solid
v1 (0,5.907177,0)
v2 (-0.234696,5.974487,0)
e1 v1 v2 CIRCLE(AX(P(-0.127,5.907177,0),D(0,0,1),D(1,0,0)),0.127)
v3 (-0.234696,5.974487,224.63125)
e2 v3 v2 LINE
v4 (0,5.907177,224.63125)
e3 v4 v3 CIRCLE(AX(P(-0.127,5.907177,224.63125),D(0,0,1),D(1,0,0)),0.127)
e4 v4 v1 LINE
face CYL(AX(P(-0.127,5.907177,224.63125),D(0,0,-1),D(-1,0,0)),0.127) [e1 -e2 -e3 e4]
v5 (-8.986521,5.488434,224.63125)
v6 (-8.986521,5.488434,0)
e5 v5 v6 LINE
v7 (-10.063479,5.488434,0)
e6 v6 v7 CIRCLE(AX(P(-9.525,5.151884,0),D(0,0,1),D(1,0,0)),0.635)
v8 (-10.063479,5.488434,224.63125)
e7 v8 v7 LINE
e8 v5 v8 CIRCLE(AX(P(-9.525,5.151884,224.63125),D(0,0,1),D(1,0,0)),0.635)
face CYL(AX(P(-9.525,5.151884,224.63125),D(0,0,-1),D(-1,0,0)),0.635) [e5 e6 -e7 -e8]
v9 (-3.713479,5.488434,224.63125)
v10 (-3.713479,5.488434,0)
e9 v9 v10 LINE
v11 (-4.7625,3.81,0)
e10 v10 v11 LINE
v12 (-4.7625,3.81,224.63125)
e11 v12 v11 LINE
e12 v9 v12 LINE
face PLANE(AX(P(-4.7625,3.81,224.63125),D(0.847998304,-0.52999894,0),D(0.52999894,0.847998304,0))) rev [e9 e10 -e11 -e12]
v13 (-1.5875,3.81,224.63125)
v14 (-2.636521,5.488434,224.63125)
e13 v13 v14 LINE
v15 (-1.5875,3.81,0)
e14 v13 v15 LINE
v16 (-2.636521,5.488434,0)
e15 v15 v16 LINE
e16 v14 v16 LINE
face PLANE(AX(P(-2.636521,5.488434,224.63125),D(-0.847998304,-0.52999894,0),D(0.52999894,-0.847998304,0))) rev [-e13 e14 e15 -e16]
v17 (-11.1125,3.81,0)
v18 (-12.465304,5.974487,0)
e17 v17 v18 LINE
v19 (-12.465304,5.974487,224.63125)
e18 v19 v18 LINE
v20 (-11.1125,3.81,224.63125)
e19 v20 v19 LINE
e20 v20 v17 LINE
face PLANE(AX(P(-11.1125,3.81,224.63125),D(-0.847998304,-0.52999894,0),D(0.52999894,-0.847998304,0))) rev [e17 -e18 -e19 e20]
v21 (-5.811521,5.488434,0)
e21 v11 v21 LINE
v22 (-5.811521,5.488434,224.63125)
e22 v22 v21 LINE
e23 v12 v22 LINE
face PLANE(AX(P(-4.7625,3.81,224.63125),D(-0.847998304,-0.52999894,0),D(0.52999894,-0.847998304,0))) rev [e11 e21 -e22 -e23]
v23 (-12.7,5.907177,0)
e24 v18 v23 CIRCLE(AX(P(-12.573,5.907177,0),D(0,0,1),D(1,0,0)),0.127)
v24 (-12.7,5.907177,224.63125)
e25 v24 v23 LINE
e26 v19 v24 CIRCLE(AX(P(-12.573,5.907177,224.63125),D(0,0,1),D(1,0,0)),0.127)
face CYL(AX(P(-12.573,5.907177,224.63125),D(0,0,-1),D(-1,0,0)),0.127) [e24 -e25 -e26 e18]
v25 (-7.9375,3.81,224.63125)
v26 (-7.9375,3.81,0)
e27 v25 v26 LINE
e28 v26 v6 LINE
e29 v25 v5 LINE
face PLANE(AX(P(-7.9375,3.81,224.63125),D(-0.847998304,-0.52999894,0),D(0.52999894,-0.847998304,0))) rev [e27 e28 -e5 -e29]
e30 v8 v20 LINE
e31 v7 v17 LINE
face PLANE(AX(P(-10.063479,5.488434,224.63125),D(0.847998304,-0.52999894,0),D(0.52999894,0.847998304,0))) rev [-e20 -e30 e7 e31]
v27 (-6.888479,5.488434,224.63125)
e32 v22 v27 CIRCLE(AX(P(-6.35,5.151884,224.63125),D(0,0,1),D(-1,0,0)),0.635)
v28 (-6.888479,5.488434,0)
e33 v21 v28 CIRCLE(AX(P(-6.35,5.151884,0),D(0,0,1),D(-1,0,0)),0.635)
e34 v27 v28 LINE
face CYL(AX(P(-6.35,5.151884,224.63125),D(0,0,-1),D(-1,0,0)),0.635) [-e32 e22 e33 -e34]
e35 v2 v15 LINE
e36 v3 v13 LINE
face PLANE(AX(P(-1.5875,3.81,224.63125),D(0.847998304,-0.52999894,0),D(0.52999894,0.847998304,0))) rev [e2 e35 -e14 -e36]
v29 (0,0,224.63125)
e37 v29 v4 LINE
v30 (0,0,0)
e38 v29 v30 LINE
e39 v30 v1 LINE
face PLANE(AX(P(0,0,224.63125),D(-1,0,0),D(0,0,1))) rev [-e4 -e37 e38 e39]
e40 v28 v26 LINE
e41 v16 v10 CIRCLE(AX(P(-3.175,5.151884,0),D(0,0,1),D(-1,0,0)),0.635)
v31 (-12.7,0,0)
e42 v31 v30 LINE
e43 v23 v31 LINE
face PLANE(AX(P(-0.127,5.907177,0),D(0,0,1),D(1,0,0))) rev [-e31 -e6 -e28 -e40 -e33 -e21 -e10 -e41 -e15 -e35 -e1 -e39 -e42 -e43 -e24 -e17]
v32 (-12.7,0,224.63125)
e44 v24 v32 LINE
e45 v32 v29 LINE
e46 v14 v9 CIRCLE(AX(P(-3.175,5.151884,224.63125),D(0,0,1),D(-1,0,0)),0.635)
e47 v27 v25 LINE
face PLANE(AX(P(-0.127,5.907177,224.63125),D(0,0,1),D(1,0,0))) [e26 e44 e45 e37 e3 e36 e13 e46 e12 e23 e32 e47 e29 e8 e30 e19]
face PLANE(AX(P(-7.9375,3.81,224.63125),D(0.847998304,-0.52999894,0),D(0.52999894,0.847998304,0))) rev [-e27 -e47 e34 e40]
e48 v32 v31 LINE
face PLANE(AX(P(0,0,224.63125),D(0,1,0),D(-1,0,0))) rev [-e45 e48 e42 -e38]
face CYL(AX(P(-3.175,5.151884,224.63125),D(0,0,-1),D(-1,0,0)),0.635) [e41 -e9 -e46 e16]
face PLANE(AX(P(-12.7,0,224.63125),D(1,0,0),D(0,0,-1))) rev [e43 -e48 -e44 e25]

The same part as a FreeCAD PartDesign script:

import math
import FreeCAD as App
import Part
import Sketcher
Q = App.Units.Quantity

doc = App.newDocument("Part")
body = doc.addObject("PartDesign::Body", "Body")

sketch1 = body.newObject("Sketcher::SketchObject", "Sketch")
sketch1.AttachmentSupport = (doc.getObject("XY_Plane"), [""])
sketch1.MapMode = "FlatFace"
sketch1.addGeometry(Part.LineSegment(App.Vector(-12.7, 0, 0), App.Vector(0, 0, 0)), False)
sketch1.addGeometry(Part.LineSegment(App.Vector(0, 0, 0), App.Vector(0, 5.907177, 0)), False)
sketch1.addGeometry(Part.ArcOfCircle(Part.Circle(App.Vector(-0.127, 5.907177, 0), App.Vector(0, 0, 1), 0.127), math.radians(0), math.radians(147.994617)), False)
sketch1.addGeometry(Part.LineSegment(App.Vector(-0.234696, 5.974487, 0), App.Vector(-1.5875, 3.81, 0)), False)
sketch1.addGeometry(Part.LineSegment(App.Vector(-1.5875, 3.81, 0), App.Vector(-2.636521, 5.488434, 0)), False)
sketch1.addGeometry(Part.ArcOfCircle(Part.Circle(App.Vector(-3.175, 5.151884, 0), App.Vector(0, 0, 1), 0.635), math.radians(32.005383), math.radians(147.994617)), False)
sketch1.addGeometry(Part.LineSegment(App.Vector(-3.713479, 5.488434, 0), App.Vector(-4.7625, 3.81, 0)), False)
sketch1.addGeometry(Part.LineSegment(App.Vector(-4.7625, 3.81, 0), App.Vector(-5.811521, 5.488434, 0)), False)
sketch1.addGeometry(Part.ArcOfCircle(Part.Circle(App.Vector(-6.35, 5.151884, 0), App.Vector(0, 0, 1), 0.635), math.radians(32.005383), math.radians(147.994617)), False)
sketch1.addGeometry(Part.LineSegment(App.Vector(-6.888479, 5.488434, 0), App.Vector(-7.9375, 3.81, 0)), False)
sketch1.addGeometry(Part.LineSegment(App.Vector(-7.9375, 3.81, 0), App.Vector(-8.986521, 5.488434, 0)), False)
sketch1.addGeometry(Part.ArcOfCircle(Part.Circle(App.Vector(-9.525, 5.151884, 0), App.Vector(0, 0, 1), 0.635), math.radians(32.005383), math.radians(147.994617)), False)
sketch1.addGeometry(Part.LineSegment(App.Vector(-10.063479, 5.488434, 0), App.Vector(-11.1125, 3.81, 0)), False)
sketch1.addGeometry(Part.LineSegment(App.Vector(-11.1125, 3.81, 0), App.Vector(-12.465304, 5.974487, 0)), False)
sketch1.addGeometry(Part.ArcOfCircle(Part.Circle(App.Vector(-12.573, 5.907177, 0), App.Vector(0, 0, 1), 0.127), math.radians(32.005383), math.radians(180)), False)
sketch1.addGeometry(Part.LineSegment(App.Vector(-12.7, 5.907177, 0), App.Vector(-12.7, 0, 0)), False)
sketch1.addConstraint(Sketcher.Constraint("Coincident", 0, 2, 1, 1))
sketch1.addConstraint(Sketcher.Constraint("Tangent", 1, 2, 2, 1))
sketch1.addConstraint(Sketcher.Constraint("Tangent", 2, 2, 3, 1))
sketch1.addConstraint(Sketcher.Constraint("Coincident", 3, 2, 4, 1))
sketch1.addConstraint(Sketcher.Constraint("Tangent", 4, 2, 5, 1))
sketch1.addConstraint(Sketcher.Constraint("Tangent", 5, 2, 6, 1))
sketch1.addConstraint(Sketcher.Constraint("Coincident", 6, 2, 7, 1))
sketch1.addConstraint(Sketcher.Constraint("Tangent", 7, 2, 8, 1))
sketch1.addConstraint(Sketcher.Constraint("Tangent", 8, 2, 9, 1))
sketch1.addConstraint(Sketcher.Constraint("Coincident", 9, 2, 10, 1))
sketch1.addConstraint(Sketcher.Constraint("Tangent", 10, 2, 11, 1))
sketch1.addConstraint(Sketcher.Constraint("Tangent", 11, 2, 12, 1))
sketch1.addConstraint(Sketcher.Constraint("Coincident", 12, 2, 13, 1))
sketch1.addConstraint(Sketcher.Constraint("Tangent", 13, 2, 14, 1))
sketch1.addConstraint(Sketcher.Constraint("Tangent", 14, 2, 15, 1))
sketch1.addConstraint(Sketcher.Constraint("Coincident", 15, 2, 0, 1))
sketch1.addConstraint(Sketcher.Constraint("Horizontal", 0))
sketch1.addConstraint(Sketcher.Constraint("Vertical", 1))
sketch1.addConstraint(Sketcher.Constraint("Vertical", 15))
sketch1.addConstraint(Sketcher.Constraint("Coincident", 0, 2, -1, 1))
sketch1.addConstraint(Sketcher.Constraint("Equal", 5, 8))
sketch1.addConstraint(Sketcher.Constraint("Equal", 8, 11))
sketch1.addConstraint(Sketcher.Constraint("Equal", 2, 14))
sketch1.addConstraint(Sketcher.Constraint("Parallel", 3, 6))
sketch1.addConstraint(Sketcher.Constraint("Parallel", 4, 7))
sketch1.addConstraint(Sketcher.Constraint("Parallel", 6, 9))
sketch1.addConstraint(Sketcher.Constraint("Parallel", 7, 10))
sketch1.addConstraint(Sketcher.Constraint("Parallel", 9, 12))
sketch1.addConstraint(Sketcher.Constraint("Parallel", 10, 13))
sketch1.addConstraint(Sketcher.Constraint("Horizontal", 5, 3, 8, 3))
sketch1.addConstraint(Sketcher.Constraint("Horizontal", 8, 3, 11, 3))
sketch1.addConstraint(Sketcher.Constraint("Horizontal", 2, 3, 14, 3))
sketch1.addConstraint(Sketcher.Constraint("Horizontal", 4, 2, 5, 2))
sketch1.addConstraint(Sketcher.Constraint("Horizontal", 3, 2, 6, 2))
sketch1.addConstraint(Sketcher.Constraint("Horizontal", 6, 2, 9, 2))
sketch1.addConstraint(Sketcher.Constraint("Horizontal", 9, 2, 12, 2))
sketch1.addConstraint(Sketcher.Constraint("DistanceX", 0, 1, 0, 2, Q("0.5 in")))
sketch1.addConstraint(Sketcher.Constraint("Radius", 2, Q("0.005 in")))
sketch1.addConstraint(Sketcher.Constraint("Radius", 5, Q("0.025 in")))
sketch1.addConstraint(Sketcher.Constraint("DistanceY", -1, 1, 3, 2, Q("0.15 in")))
sketch1.addConstraint(Sketcher.Constraint("DistanceX", 5, 3, 2, 3, Q("0.12 in")))
sketch1.addConstraint(Sketcher.Constraint("DistanceX", 4, 2, -1, 1, Q("0.1038 in")))
pad1 = body.newObject("PartDesign::Pad", "Pad")
pad1.Profile = sketch1
pad1.Length = Q("8.84375 in")

doc.recompute()
